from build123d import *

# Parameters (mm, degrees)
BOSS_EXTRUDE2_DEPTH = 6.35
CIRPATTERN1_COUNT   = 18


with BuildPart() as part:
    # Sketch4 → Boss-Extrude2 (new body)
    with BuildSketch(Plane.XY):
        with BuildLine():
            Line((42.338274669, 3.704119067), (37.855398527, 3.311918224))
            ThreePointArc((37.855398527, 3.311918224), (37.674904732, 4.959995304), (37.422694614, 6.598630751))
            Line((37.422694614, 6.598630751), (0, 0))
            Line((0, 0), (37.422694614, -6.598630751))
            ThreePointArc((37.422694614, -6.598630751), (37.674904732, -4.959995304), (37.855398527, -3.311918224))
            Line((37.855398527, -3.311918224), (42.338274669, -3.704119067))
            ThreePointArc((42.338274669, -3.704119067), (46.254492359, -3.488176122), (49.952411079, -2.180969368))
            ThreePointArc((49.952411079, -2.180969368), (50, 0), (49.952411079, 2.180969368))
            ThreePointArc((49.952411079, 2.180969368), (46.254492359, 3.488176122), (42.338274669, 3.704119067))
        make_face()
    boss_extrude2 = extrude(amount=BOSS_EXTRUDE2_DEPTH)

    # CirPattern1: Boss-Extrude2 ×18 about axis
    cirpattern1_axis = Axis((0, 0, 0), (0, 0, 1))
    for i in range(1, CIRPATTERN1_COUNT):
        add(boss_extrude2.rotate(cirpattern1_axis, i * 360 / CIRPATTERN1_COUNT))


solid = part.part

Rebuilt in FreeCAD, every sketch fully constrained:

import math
import FreeCAD as App
import Part
import Sketcher
from FreeCAD import Vector
Q = App.Units.Quantity

doc = App.newDocument("Part")
body = doc.addObject("PartDesign::Body", "Body")

sketch1 = body.newObject("Sketcher::SketchObject", "Sketch")
sketch1.AttachmentSupport = (doc.getObject("XY_Plane"), [""])
sketch1.MapMode = "FlatFace"
sketch1.addGeometry([
    Part.LineSegment(Vector(42.3, 3.7, 0), Vector(37.9, 3.3, 0)),
    Part.ArcOfCircle(Part.Circle(Vector(0, 0, 0), Vector(0, 0, 1), 38), math.radians(5), math.radians(10)),
    Part.LineSegment(Vector(37.4, 6.6, 0), Vector(0, 0, 0)),
    Part.LineSegment(Vector(0, 0, 0), Vector(37.4, -6.6, 0)),
    Part.ArcOfCircle(Part.Circle(Vector(0, 0, 0), Vector(0, 0, 1), 38), math.radians(-10), math.radians(-5)),
    Part.LineSegment(Vector(37.9, -3.3, 0), Vector(42.3, -3.7, 0)),
    Part.ArcOfCircle(Part.Circle(Vector(43.5, 10.1, 0), Vector(0, 0, 1), 13.8), math.radians(-95), math.radians(-62)),
    Part.ArcOfCircle(Part.Circle(Vector(0, 0, 0), Vector(0, 0, 1), 50), math.radians(-2.5), math.radians(2.5)),
    Part.ArcOfCircle(Part.Circle(Vector(43.5, -10.1, 0), Vector(0, 0, 1), 13.8), math.radians(62), math.radians(95)),
], False)
sketch1.addConstraint([
    Sketcher.Constraint("Coincident", 0, 2, 1, 1),
    Sketcher.Constraint("Coincident", 1, 2, 2, 1),
    Sketcher.Constraint("Coincident", 2, 2, 3, 1),
    Sketcher.Constraint("Coincident", 3, 2, 4, 1),
    Sketcher.Constraint("Coincident", 4, 2, 5, 1),
    Sketcher.Constraint("Tangent", 5, 2, 6, 1),
    Sketcher.Constraint("Coincident", 6, 2, 7, 1),
    Sketcher.Constraint("Coincident", 7, 2, 8, 1),
    Sketcher.Constraint("Tangent", 8, 2, 0, 1),
    Sketcher.Constraint("Coincident", 1, 3, -1, 1),
    Sketcher.Constraint("Coincident", 4, 3, -1, 1),
    Sketcher.Constraint("Coincident", 7, 3, -1, 1),
    Sketcher.Constraint("Coincident", 2, 2, -1, 1),
    Sketcher.Constraint("Equal", 1, 4),
    Sketcher.Constraint("Equal", 6, 8),
    Sketcher.Constraint("Symmetric", 6, 3, 8, 3, -1),
    Sketcher.Constraint("Vertical", 1, 2, 3, 2),
    Sketcher.Constraint("Vertical", 0, 2, 4, 2),
    Sketcher.Constraint("Radius", 1, 38.0),
    Sketcher.Constraint("Radius", 7, 50.0),
    Sketcher.Constraint("Angle", 0, Q("-175 deg")),
    Sketcher.Constraint("Angle", 2, Q("-170 deg")),
    Sketcher.Constraint("Distance", 0, 4.5),
    Sketcher.Constraint("Radius", 6, 13.822995),
    Sketcher.Constraint("DistanceX", -1, 1, 0, 2, 37.855399),
])
pad1 = body.newObject("PartDesign::Pad", "Pad")
pad1.Profile = sketch1
pad1.Length = 6.35
doc.recompute()

polarpattern = body.newObject("PartDesign::PolarPattern", "PolarPattern")
polarpattern.Originals = [pad1]
polarpattern.Axis = (doc.getObject("Z_Axis"), [""])
polarpattern.Angle = 360
polarpattern.Occurrences = 18
body.Tip = polarpattern

doc.recompute()
